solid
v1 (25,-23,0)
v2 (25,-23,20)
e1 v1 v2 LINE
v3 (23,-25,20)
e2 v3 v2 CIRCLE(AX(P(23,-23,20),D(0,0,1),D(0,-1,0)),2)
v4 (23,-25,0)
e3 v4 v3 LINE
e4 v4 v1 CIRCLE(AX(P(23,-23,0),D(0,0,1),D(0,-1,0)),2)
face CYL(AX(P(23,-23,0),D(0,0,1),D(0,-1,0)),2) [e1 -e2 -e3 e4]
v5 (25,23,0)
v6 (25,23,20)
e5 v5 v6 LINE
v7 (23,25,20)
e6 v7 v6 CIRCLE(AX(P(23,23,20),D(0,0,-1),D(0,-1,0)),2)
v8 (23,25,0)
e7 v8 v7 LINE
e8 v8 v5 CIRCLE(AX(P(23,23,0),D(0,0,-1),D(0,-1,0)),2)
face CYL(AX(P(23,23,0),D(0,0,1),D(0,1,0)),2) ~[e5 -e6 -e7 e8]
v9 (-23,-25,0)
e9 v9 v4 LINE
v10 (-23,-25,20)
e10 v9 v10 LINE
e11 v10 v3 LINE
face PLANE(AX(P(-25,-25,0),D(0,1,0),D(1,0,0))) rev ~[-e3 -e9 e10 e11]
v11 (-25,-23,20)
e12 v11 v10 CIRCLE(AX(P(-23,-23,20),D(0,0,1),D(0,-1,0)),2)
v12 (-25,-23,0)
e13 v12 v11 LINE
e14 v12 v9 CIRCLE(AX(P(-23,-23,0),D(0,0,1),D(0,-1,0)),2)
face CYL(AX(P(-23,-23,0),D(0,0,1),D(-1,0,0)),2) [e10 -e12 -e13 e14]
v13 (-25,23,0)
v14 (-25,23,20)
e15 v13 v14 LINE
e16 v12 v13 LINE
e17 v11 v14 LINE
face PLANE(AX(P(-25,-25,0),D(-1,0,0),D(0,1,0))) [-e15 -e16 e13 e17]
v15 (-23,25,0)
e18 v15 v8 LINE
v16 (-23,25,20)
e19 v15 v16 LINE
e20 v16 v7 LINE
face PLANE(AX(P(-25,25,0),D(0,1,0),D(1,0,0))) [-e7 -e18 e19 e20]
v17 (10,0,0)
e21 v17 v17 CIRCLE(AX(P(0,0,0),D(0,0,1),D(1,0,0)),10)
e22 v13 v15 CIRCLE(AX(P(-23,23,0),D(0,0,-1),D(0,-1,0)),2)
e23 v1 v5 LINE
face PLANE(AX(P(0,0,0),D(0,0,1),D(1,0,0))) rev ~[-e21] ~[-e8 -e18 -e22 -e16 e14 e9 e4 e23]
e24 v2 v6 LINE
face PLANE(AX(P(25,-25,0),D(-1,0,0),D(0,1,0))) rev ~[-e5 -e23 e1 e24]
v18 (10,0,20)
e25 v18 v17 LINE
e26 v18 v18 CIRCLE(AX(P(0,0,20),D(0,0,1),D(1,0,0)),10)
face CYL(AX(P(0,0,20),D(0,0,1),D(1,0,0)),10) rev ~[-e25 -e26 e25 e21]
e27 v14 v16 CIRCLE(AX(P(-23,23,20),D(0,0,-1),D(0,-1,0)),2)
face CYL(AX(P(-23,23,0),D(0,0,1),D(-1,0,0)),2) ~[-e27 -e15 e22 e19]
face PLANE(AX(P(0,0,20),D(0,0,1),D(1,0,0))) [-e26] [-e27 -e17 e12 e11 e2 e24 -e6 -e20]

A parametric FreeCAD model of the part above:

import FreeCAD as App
import Part
import Sketcher


def edges_at(feature, points):
    """Names of the edges that pass closest to the given points."""
    edges = feature.Shape.Edges
    near = lambda p: min(range(len(edges)), key=lambda i: edges[i].distToShape(Part.Vertex(*p))[0])
    return sorted({f"Edge{near(p) + 1}" for p in points})

doc = App.newDocument("Part")
body = doc.addObject("PartDesign::Body", "Body")

sketch1 = doc.addObject("Sketcher::SketchObject", "Sketch")
body.addObject(sketch1)
sketch1.AttachmentSupport = (doc.XY_Plane, [""])
sketch1.MapMode = "FlatFace"
sketch1.addGeometry([
    Part.LineSegment(App.Vector(-25, 25, 0), App.Vector(-25, -25, 0)),
    Part.LineSegment(App.Vector(-25, -25, 0), App.Vector(25, -25, 0)),
    Part.LineSegment(App.Vector(25, -25, 0), App.Vector(25, 25, 0)),
    Part.LineSegment(App.Vector(25, 25, 0), App.Vector(-25, 25, 0)),
], False)
sketch1.addConstraint([
    Sketcher.Constraint("Coincident", 0, 2, 1, 1),
    Sketcher.Constraint("Coincident", 1, 2, 2, 1),
    Sketcher.Constraint("Coincident", 2, 2, 3, 1),
    Sketcher.Constraint("Coincident", 3, 2, 0, 1),
    Sketcher.Constraint("Vertical", 0),
    Sketcher.Constraint("Horizontal", 1),
    Sketcher.Constraint("Vertical", 2),
    Sketcher.Constraint("Horizontal", 3),
    Sketcher.Constraint("Symmetric", 0, 2, 2, 2, -1, 1),
    Sketcher.Constraint("Equal", 3, 0),
    Sketcher.Constraint("DistanceX", 1, 1, 1, 2, 50.0),
])
pad1 = doc.addObject("PartDesign::Pad", "Pad")
body.addObject(pad1)
pad1.Profile = sketch1
pad1.Length = 20

sketch2 = doc.addObject("Sketcher::SketchObject", "Sketch001")
body.addObject(sketch2)
sketch2.AttachmentSupport = (doc.XY_Plane, [""])
sketch2.MapMode = "FlatFace"
sketch2.AttachmentOffset = App.Placement(App.Vector(0, 0, 20), App.Rotation())
sketch2.addGeometry(Part.Circle(App.Vector(0, 0, 0), App.Vector(0, 0, 1), 10), False)
sketch2.addConstraint([
    Sketcher.Constraint("Coincident", 0, 3, -1, 1),
    Sketcher.Constraint("Diameter", 0, 20.0),
])
pocket1 = doc.addObject("PartDesign::Pocket", "Pocket")
body.addObject(pocket1)
pocket1.Profile = sketch2
pocket1.Type = "ThroughAll"
doc.recompute()

fillet = doc.addObject("PartDesign::Fillet", "Fillet")
body.addObject(fillet)
fillet.Base = (pocket1, edges_at(pocket1, [
    (-25, -25, 10),
    (25, -25, 10),
    (-25, 25, 10),
    (25, 25, 10),
]))
fillet.Radius = 2

doc.recompute()
